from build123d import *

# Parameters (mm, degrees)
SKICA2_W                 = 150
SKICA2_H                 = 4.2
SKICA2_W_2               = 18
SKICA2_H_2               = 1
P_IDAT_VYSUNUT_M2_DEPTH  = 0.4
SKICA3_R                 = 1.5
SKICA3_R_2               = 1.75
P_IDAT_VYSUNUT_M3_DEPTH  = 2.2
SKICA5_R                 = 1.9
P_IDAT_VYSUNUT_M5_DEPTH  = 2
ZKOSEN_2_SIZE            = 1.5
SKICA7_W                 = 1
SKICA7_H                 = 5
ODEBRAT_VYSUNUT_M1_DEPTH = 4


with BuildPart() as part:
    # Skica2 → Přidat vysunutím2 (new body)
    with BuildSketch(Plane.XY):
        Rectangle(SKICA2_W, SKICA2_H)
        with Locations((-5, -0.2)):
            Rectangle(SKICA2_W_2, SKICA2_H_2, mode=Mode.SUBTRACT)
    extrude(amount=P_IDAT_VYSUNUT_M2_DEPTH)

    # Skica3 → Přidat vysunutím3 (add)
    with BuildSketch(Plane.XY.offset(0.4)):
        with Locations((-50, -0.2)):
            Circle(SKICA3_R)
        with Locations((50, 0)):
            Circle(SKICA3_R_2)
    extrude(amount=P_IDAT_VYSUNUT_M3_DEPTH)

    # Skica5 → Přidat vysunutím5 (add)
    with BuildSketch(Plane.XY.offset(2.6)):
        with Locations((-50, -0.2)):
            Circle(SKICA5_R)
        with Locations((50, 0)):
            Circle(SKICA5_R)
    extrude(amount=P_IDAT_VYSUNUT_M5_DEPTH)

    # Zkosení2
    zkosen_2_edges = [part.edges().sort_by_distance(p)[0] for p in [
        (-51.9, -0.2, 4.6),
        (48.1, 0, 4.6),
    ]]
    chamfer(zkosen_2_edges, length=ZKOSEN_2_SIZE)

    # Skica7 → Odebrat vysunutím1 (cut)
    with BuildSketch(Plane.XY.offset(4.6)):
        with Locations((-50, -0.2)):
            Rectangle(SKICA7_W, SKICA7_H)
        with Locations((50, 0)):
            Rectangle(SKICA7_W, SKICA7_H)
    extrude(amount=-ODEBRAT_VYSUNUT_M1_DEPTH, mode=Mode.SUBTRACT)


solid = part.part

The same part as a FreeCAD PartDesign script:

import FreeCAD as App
import Part
import Sketcher
from FreeCAD import Vector
Q = App.Units.Quantity


def edges_at(feature, points):
    """Names of the edges that pass closest to the given points."""
    edges = feature.Shape.Edges
    near = lambda p: min(range(len(edges)), key=lambda i: edges[i].distToShape(Part.Vertex(*p))[0])
    return sorted({f"Edge{near(p) + 1}" for p in points})

doc = App.newDocument("Part")
body = doc.addObject("PartDesign::Body", "Body")

# Sketch on XY plane
sketch1 = body.newObject("Sketcher::SketchObject", "Sketch")
sketch1.AttachmentSupport = (doc.getObject("XY_Plane"), [""])
sketch1.MapMode = "FlatFace"
sketch1.addGeometry([
    Part.LineSegment(Vector(-75, 2.1, 0), Vector(-75, -2.1, 0)),  # 0
    Part.LineSegment(Vector(-75, -2.1, 0), Vector(75, -2.1, 0)),  # 1
    Part.LineSegment(Vector(75, -2.1, 0), Vector(75, 2.1, 0)),  # 2
    Part.LineSegment(Vector(75, 2.1, 0), Vector(-75, 2.1, 0)),  # 3
    Part.LineSegment(Vector(4, -0.7, 0), Vector(-14, -0.7, 0)),  # 4
    Part.LineSegment(Vector(-14, -0.7, 0), Vector(-14, 0.3, 0)),  # 5
    Part.LineSegment(Vector(-14, 0.3, 0), Vector(4, 0.3, 0)),  # 6
    Part.LineSegment(Vector(4, 0.3, 0), Vector(4, -0.7, 0)),  # 7
], False)
sketch1.addConstraint([
    Sketcher.Constraint("Coincident", 0, 2, 1, 1),
    Sketcher.Constraint("Coincident", 1, 2, 2, 1),
    Sketcher.Constraint("Coincident", 2, 2, 3, 1),
    Sketcher.Constraint("Coincident", 3, 2, 0, 1),
    Sketcher.Constraint("Coincident", 4, 2, 5, 1),
    Sketcher.Constraint("Coincident", 5, 2, 6, 1),
    Sketcher.Constraint("Coincident", 6, 2, 7, 1),
    Sketcher.Constraint("Coincident", 7, 2, 4, 1),
    Sketcher.Constraint("Vertical", 0),
    Sketcher.Constraint("Horizontal", 1),
    Sketcher.Constraint("Vertical", 2),
    Sketcher.Constraint("Horizontal", 3),
    Sketcher.Constraint("Horizontal", 4),
    Sketcher.Constraint("Vertical", 5),
    Sketcher.Constraint("Horizontal", 6),
    Sketcher.Constraint("Vertical", 7),
    Sketcher.Constraint("Symmetric", 0, 2, 2, 2, -1, 1),
    Sketcher.Constraint("DistanceX", 1, 1, 1, 2, Q("150 mm")),
    Sketcher.Constraint("DistanceX", 4, 2, 4, 1, Q("18 mm")),
    Sketcher.Constraint("DistanceY", 5, 1, 5, 2, Q("1 mm")),
    Sketcher.Constraint("DistanceY", 0, 2, 0, 1, Q("4.2 mm")),
    Sketcher.Constraint("DistanceX", 4, 2, -1, 1, Q("14 mm")),
    Sketcher.Constraint("DistanceY", 4, 2, -1, 1, Q("0.7 mm")),
])
pad1 = body.newObject("PartDesign::Pad", "Pad")
pad1.Profile = sketch1
pad1.Length = 0.4

# Sketch on XY plane
sketch2 = body.newObject("Sketcher::SketchObject", "Sketch001")
sketch2.AttachmentSupport = (doc.getObject("XY_Plane"), [""])
sketch2.MapMode = "FlatFace"
sketch2.AttachmentOffset = App.Placement(Vector(0, 0, 0.4), App.Rotation())
sketch2.addGeometry([
    Part.Circle(Vector(-50, -0.2, 0), Vector(0, 0, 1), 1.5),
    Part.Circle(Vector(50, 0, 0), Vector(0, 0, 1), 1.8),
], False)
sketch2.addConstraint([
    Sketcher.Constraint("PointOnObject", 1, 3, -1),
    Sketcher.Constraint("Diameter", 0, Q("3 mm")),
    Sketcher.Constraint("Diameter", 1, Q("3.5 mm")),
    Sketcher.Constraint("DistanceX", 0, 3, -1, 1, Q("50 mm")),
    Sketcher.Constraint("DistanceX", -1, 1, 1, 3, Q("50 mm")),
    Sketcher.Constraint("DistanceY", 0, 3, -1, 1, Q("0.2 mm")),
])
pad2 = body.newObject("PartDesign::Pad", "Pad001")
pad2.Profile = sketch2
pad2.Length = 2.2

# Sketch on XY plane
sketch3 = body.newObject("Sketcher::SketchObject", "Sketch002")
sketch3.AttachmentSupport = (doc.getObject("XY_Plane"), [""])
sketch3.MapMode = "FlatFace"
sketch3.AttachmentOffset = App.Placement(Vector(0, 0, 2.6), App.Rotation())
sketch3.addGeometry([
    Part.Circle(Vector(-50, -0.2, 0), Vector(0, 0, 1), 1.9),
    Part.Circle(Vector(50, 0, 0), Vector(0, 0, 1), 1.9),
], False)
sketch3.addConstraint([
    Sketcher.Constraint("Equal", 0, 1),
    Sketcher.Constraint("PointOnObject", 1, 3, -1),
    Sketcher.Constraint("Diameter", 0, Q("3.8 mm")),
    Sketcher.Constraint("DistanceX", 0, 3, -1, 1, Q("50 mm")),
    Sketcher.Constraint("DistanceX", -1, 1, 1, 3, Q("50 mm")),
    Sketcher.Constraint("DistanceY", 0, 3, -1, 1, Q("0.2 mm")),
])
pad3 = body.newObject("PartDesign::Pad", "Pad002")
pad3.Profile = sketch3
pad3.Length = 2
doc.recompute()

chamfer = body.newObject("PartDesign::Chamfer", "Chamfer")
chamfer.Base = (pad3, edges_at(pad3, [(-51.9, -0.2, 4.6), (48.1, 0, 4.6)]))
chamfer.Size = 1.5

# Sketch on XY plane
sketch4 = body.newObject("Sketcher::SketchObject", "Sketch003")
sketch4.AttachmentSupport = (doc.getObject("XY_Plane"), [""])
sketch4.MapMode = "FlatFace"
sketch4.AttachmentOffset = App.Placement(Vector(0, 0, 4.6), App.Rotation())
sketch4.addGeometry([
    Part.LineSegment(Vector(-50.5, 2.3, 0), Vector(-50.5, -2.7, 0)),  # 0
    Part.LineSegment(Vector(-50.5, -2.7, 0), Vector(-49.5, -2.7, 0)),  # 1
    Part.LineSegment(Vector(-49.5, -2.7, 0), Vector(-49.5, 2.3, 0)),  # 2
    Part.LineSegment(Vector(-49.5, 2.3, 0), Vector(-50.5, 2.3, 0)),  # 3
    Part.LineSegment(Vector(49.5, 2.5, 0), Vector(49.5, -2.5, 0)),  # 4
    Part.LineSegment(Vector(49.5, -2.5, 0), Vector(50.5, -2.5, 0)),  # 5
    Part.LineSegment(Vector(50.5, -2.5, 0), Vector(50.5, 2.5, 0)),  # 6
    Part.LineSegment(Vector(50.5, 2.5, 0), Vector(49.5, 2.5, 0)),  # 7
], False)
sketch4.addConstraint([
    Sketcher.Constraint("Coincident", 0, 2, 1, 1),
    Sketcher.Constraint("Coincident", 1, 2, 2, 1),
    Sketcher.Constraint("Coincident", 2, 2, 3, 1),
    Sketcher.Constraint("Coincident", 3, 2, 0, 1),
    Sketcher.Constraint("Coincident", 4, 2, 5, 1),
    Sketcher.Constraint("Coincident", 5, 2, 6, 1),
    Sketcher.Constraint("Coincident", 6, 2, 7, 1),
    Sketcher.Constraint("Coincident", 7, 2, 4, 1),
    Sketcher.Constraint("Vertical", 0),
    Sketcher.Constraint("Horizontal", 1),
    Sketcher.Constraint("Vertical", 2),
    Sketcher.Constraint("Horizontal", 3),
    Sketcher.Constraint("Vertical", 4),
    Sketcher.Constraint("Horizontal", 5),
    Sketcher.Constraint("Vertical", 6),
    Sketcher.Constraint("Horizontal", 7),
    Sketcher.Constraint("Equal", 3, 5),
    Sketcher.Constraint("Equal", 2, 4),
    Sketcher.Constraint("DistanceX", 1, 1, 1, 2, Q("1 mm")),
    Sketcher.Constraint("DistanceY", 0, 2, 0, 1, Q("5 mm")),
    Sketcher.Constraint("DistanceX", 1, 2, 4, 2, Q("99 mm")),
    Sketcher.Constraint("DistanceX", 0, 2, -1, 1, Q("50.5 mm")),
    Sketcher.Constraint("DistanceY", 0, 2, -1, 1, Q("2.7 mm")),
    Sketcher.Constraint("DistanceY", 4, 2, -1, 1, Q("2.5 mm")),
])
pocket1 = body.newObject("PartDesign::Pocket", "Pocket")
pocket1.Profile = sketch4
pocket1.Length = 4

doc.recompute()
